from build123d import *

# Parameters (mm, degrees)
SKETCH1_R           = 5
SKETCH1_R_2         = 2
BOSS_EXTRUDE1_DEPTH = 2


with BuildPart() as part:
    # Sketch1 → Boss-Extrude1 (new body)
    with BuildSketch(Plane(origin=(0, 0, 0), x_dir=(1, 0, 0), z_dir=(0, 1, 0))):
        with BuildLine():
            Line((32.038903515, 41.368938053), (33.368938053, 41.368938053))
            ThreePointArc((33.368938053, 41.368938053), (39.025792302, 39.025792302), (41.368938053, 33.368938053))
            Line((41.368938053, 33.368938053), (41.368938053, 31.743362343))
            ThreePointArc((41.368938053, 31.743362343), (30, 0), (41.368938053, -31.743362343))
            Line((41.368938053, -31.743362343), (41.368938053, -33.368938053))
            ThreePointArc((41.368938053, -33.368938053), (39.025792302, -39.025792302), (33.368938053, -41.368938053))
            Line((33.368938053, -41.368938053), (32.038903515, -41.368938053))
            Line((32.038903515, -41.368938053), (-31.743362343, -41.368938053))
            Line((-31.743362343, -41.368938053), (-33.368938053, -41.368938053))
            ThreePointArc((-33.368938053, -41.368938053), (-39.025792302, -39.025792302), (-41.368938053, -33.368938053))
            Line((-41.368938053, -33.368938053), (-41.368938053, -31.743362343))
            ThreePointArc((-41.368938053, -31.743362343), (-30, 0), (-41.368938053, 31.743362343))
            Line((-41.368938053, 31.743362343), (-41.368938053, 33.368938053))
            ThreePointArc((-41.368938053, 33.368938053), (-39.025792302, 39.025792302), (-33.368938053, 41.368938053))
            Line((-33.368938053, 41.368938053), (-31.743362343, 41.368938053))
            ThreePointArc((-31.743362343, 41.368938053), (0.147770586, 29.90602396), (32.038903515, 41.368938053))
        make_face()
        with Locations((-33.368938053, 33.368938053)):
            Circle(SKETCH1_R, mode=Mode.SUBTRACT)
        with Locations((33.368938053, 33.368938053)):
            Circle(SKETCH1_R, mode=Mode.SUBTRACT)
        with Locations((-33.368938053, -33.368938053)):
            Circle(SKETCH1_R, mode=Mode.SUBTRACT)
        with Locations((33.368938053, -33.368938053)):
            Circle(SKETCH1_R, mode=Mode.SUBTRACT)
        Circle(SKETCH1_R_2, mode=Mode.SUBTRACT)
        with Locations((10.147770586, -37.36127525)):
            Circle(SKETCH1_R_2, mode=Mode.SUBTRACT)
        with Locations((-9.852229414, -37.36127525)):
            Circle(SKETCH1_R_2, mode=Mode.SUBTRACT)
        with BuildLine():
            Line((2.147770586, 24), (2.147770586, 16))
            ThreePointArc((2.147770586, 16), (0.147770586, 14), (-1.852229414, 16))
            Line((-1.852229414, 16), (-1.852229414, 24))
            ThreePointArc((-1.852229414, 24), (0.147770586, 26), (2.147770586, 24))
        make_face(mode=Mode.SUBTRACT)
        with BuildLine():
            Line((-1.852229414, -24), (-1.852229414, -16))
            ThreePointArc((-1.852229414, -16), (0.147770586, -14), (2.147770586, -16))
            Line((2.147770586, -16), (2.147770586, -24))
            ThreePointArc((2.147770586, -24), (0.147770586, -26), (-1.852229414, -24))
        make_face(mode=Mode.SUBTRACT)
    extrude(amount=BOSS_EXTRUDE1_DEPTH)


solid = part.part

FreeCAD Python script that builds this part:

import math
import FreeCAD as App
import Part
import Sketcher
Q = App.Units.Quantity

doc = App.newDocument("Part")
body = doc.addObject("PartDesign::Body", "Body")

# Sketch on XZ plane
sketch1 = body.newObject("Sketcher::SketchObject", "Sketch")
sketch1.AttachmentSupport = (doc.getObject("XZ_Plane"), [""])
sketch1.MapMode = "FlatFace"
sketch1.addGeometry(Part.LineSegment(App.Vector(33.4, -41.4, 0), App.Vector(32, -41.4, 0)), False)
sketch1.addGeometry(Part.ArcOfCircle(Part.Circle(App.Vector(0.1, -80, 0), App.Vector(0, 0, 1), 50.1), math.radians(50), math.radians(130)), False)
sketch1.addGeometry(Part.LineSegment(App.Vector(-31.7, -41.4, 0), App.Vector(-33.4, -41.4, 0)), False)
sketch1.addGeometry(Part.ArcOfCircle(Part.Circle(App.Vector(-33.4, -33.4, 0), App.Vector(0, 0, 1), 8), math.radians(-180), math.radians(-90)), False)
sketch1.addGeometry(Part.LineSegment(App.Vector(-41.4, -33.4, 0), App.Vector(-41.4, -31.7, 0)), False)
sketch1.addGeometry(Part.ArcOfCircle(Part.Circle(App.Vector(-80, 0, 0), App.Vector(0, 0, 1), 50), math.radians(-39), math.radians(39)), False)
sketch1.addGeometry(Part.LineSegment(App.Vector(-41.4, 31.7, 0), App.Vector(-41.4, 33.4, 0)), False)
sketch1.addGeometry(Part.ArcOfCircle(Part.Circle(App.Vector(-33.4, 33.4, 0), App.Vector(0, 0, 1), 8), math.radians(90), math.radians(180)), False)
sketch1.addGeometry(Part.LineSegment(App.Vector(-33.4, 41.4, 0), App.Vector(33.4, 41.4, 0)), False)
sketch1.addGeometry(Part.ArcOfCircle(Part.Circle(App.Vector(33.4, 33.4, 0), App.Vector(0, 0, 1), 8), math.radians(0), math.radians(90)), False)
sketch1.addGeometry(Part.LineSegment(App.Vector(41.4, 33.4, 0), App.Vector(41.4, 31.7, 0)), False)
sketch1.addGeometry(Part.ArcOfCircle(Part.Circle(App.Vector(80, 0, 0), App.Vector(0, 0, 1), 50), math.radians(141), math.radians(219)), False)
sketch1.addGeometry(Part.LineSegment(App.Vector(41.4, -31.7, 0), App.Vector(41.4, -33.4, 0)), False)
sketch1.addGeometry(Part.ArcOfCircle(Part.Circle(App.Vector(33.4, -33.4, 0), App.Vector(0, 0, 1), 8), math.radians(-90), math.radians(0)), False)
sketch1.addGeometry(Part.Circle(App.Vector(33.4, 33.4, 0), App.Vector(0, 0, 1), 5), False)
sketch1.addGeometry(Part.Circle(App.Vector(10.1, 37.4, 0), App.Vector(0, 0, 1), 2), False)
sketch1.addGeometry(Part.LineSegment(App.Vector(-1.9, 24, 0), App.Vector(-1.9, 16, 0)), False)
sketch1.addGeometry(Part.ArcOfCircle(Part.Circle(App.Vector(0.1, 16, 0), App.Vector(0, 0, 1), 2), math.radians(180), math.radians(360)), False)
sketch1.addGeometry(Part.LineSegment(App.Vector(2.1, 16, 0), App.Vector(2.1, 24, 0)), False)
sketch1.addGeometry(Part.ArcOfCircle(Part.Circle(App.Vector(0.1, 24, 0), App.Vector(0, 0, 1), 2), math.radians(0), math.radians(180)), False)
sketch1.addGeometry(Part.Circle(App.Vector(-9.9, 37.4, 0), App.Vector(0, 0, 1), 2), False)
sketch1.addGeometry(Part.Circle(App.Vector(-33.4, 33.4, 0), App.Vector(0, 0, 1), 5), False)
sketch1.addGeometry(Part.Circle(App.Vector(0, 0, 0), App.Vector(0, 0, 1), 2), False)
sketch1.addGeometry(Part.Circle(App.Vector(33.4, -33.4, 0), App.Vector(0, 0, 1), 5), False)
sketch1.addGeometry(Part.LineSegment(App.Vector(2.1, -24, 0), App.Vector(2.1, -16, 0)), False)
sketch1.addGeometry(Part.ArcOfCircle(Part.Circle(App.Vector(0.1, -16, 0), App.Vector(0, 0, 1), 2), math.radians(0), math.radians(180)), False)
sketch1.addGeometry(Part.LineSegment(App.Vector(-1.9, -16, 0), App.Vector(-1.9, -24, 0)), False)
sketch1.addGeometry(Part.ArcOfCircle(Part.Circle(App.Vector(0.1, -24, 0), App.Vector(0, 0, 1), 2), math.radians(180), math.radians(360)), False)
sketch1.addGeometry(Part.Circle(App.Vector(-33.4, -33.4, 0), App.Vector(0, 0, 1), 5), False)
sketch1.addConstraint(Sketcher.Constraint("Coincident", 0, 2, 1, 1))
sketch1.addConstraint(Sketcher.Constraint("Coincident", 1, 2, 2, 1))
sketch1.addConstraint(Sketcher.Constraint("Tangent", 2, 2, 3, 2))
sketch1.addConstraint(Sketcher.Constraint("Tangent", 3, 1, 4, 1))
sketch1.addConstraint(Sketcher.Constraint("Coincident", 4, 2, 5, 1))
sketch1.addConstraint(Sketcher.Constraint("Coincident", 5, 2, 6, 1))
sketch1.addConstraint(Sketcher.Constraint("Tangent", 6, 2, 7, 2))
sketch1.addConstraint(Sketcher.Constraint("Tangent", 7, 1, 8, 1))
sketch1.addConstraint(Sketcher.Constraint("Tangent", 8, 2, 9, 2))
sketch1.addConstraint(Sketcher.Constraint("Tangent", 9, 1, 10, 1))
sketch1.addConstraint(Sketcher.Constraint("Coincident", 10, 2, 11, 1))
sketch1.addConstraint(Sketcher.Constraint("Coincident", 11, 2, 12, 1))
sketch1.addConstraint(Sketcher.Constraint("Tangent", 12, 2, 13, 2))
sketch1.addConstraint(Sketcher.Constraint("Tangent", 13, 1, 0, 1))
sketch1.addConstraint(Sketcher.Constraint("Tangent", 16, 2, 17, 1))
sketch1.addConstraint(Sketcher.Constraint("Tangent", 17, 2, 18, 1))
sketch1.addConstraint(Sketcher.Constraint("Tangent", 18, 2, 19, 1))
sketch1.addConstraint(Sketcher.Constraint("Tangent", 19, 2, 16, 1))
sketch1.addConstraint(Sketcher.Constraint("Tangent", 24, 2, 25, 1))
sketch1.addConstraint(Sketcher.Constraint("Tangent", 25, 2, 26, 1))
sketch1.addConstraint(Sketcher.Constraint("Tangent", 26, 2, 27, 1))
sketch1.addConstraint(Sketcher.Constraint("Tangent", 27, 2, 24, 1))
sketch1.addConstraint(Sketcher.Constraint("Horizontal", 0))
sketch1.addConstraint(Sketcher.Constraint("Horizontal", 2))
sketch1.addConstraint(Sketcher.Constraint("Vertical", 4))
sketch1.addConstraint(Sketcher.Constraint("Vertical", 6))
sketch1.addConstraint(Sketcher.Constraint("Horizontal", 8))
sketch1.addConstraint(Sketcher.Constraint("Vertical", 10))
sketch1.addConstraint(Sketcher.Constraint("Vertical", 12))
sketch1.addConstraint(Sketcher.Constraint("Vertical", 16))
sketch1.addConstraint(Sketcher.Constraint("Vertical", 18))
sketch1.addConstraint(Sketcher.Constraint("Vertical", 24))
sketch1.addConstraint(Sketcher.Constraint("Vertical", 26))
sketch1.addConstraint(Sketcher.Constraint("Coincident", 22, 3, -1, 1))
sketch1.addConstraint(Sketcher.Constraint("Coincident", 14, 3, 9, 3))
sketch1.addConstraint(Sketcher.Constraint("Coincident", 21, 3, 7, 3))
sketch1.addConstraint(Sketcher.Constraint("Coincident", 23, 3, 13, 3))
sketch1.addConstraint(Sketcher.Constraint("Coincident", 28, 3, 3, 3))
sketch1.addConstraint(Sketcher.Constraint("Equal", 3, 7))
sketch1.addConstraint(Sketcher.Constraint("Equal", 7, 9))
sketch1.addConstraint(Sketcher.Constraint("Equal", 5, 11))
sketch1.addConstraint(Sketcher.Constraint("Equal", 9, 13))
sketch1.addConstraint(Sketcher.Constraint("Equal", 15, 17))
sketch1.addConstraint(Sketcher.Constraint("Equal", 19, 20))
sketch1.addConstraint(Sketcher.Constraint("Equal", 14, 21))
sketch1.addConstraint(Sketcher.Constraint("Equal", 20, 22))
sketch1.addConstraint(Sketcher.Constraint("Equal", 21, 23))
sketch1.addConstraint(Sketcher.Constraint("Equal", 22, 25))
sketch1.addConstraint(Sketcher.Constraint("Equal", 23, 28))
sketch1.addConstraint(Sketcher.Constraint("Symmetric", 3, 3, 9, 3, -1, 1))
sketch1.addConstraint(Sketcher.Constraint("Symmetric", 5, 3, 11, 3, -1, 1))
sketch1.addConstraint(Sketcher.Constraint("Symmetric", 7, 3, 13, 3, -1, 1))
sketch1.addConstraint(Sketcher.Constraint("Symmetric", 5, 2, 10, 2, -2))
sketch1.addConstraint(Sketcher.Constraint("Symmetric", 17, 3, 25, 3, -1))
sketch1.addConstraint(Sketcher.Constraint("Horizontal", 15, 3, 20, 3))
sketch1.addConstraint(Sketcher.Constraint("Vertical", 1, 3, 17, 3))
sketch1.addConstraint(Sketcher.Constraint("Equal", 2, 4))
sketch1.addConstraint(Sketcher.Constraint("Equal", 18, 24))
sketch1.addConstraint(Sketcher.Constraint("Diameter", 14, Q("10 mm")))
sketch1.addConstraint(Sketcher.Constraint("Diameter", 15, Q("4 mm")))
sketch1.addConstraint(Sketcher.Constraint("Radius", 3, Q("8 mm")))
sketch1.addConstraint(Sketcher.Constraint("Radius", 5, Q("50 mm")))
sketch1.addConstraint(Sketcher.Constraint("DistanceY", 16, 2, 16, 1, Q("8 mm")))
sketch1.addConstraint(Sketcher.Constraint("DistanceX", 5, 3, -1, 1, Q("80 mm")))
sketch1.addConstraint(Sketcher.Constraint("DistanceY", -1, 1, 17, 3, Q("16 mm")))
sketch1.addConstraint(Sketcher.Constraint("DistanceX", 17, 3, 15, 3, Q("10 mm")))
sketch1.addConstraint(Sketcher.Constraint("DistanceX", 20, 3, 19, 3, Q("10 mm")))
sketch1.addConstraint(Sketcher.Constraint("Radius", 1, Q("50.09384 mm")))
sketch1.addConstraint(Sketcher.Constraint("DistanceY", 1, 3, 7, 3, Q("113.368802 mm")))
sketch1.addConstraint(Sketcher.Constraint("DistanceX", 0, 2, 0, 1, Q("1.330035 mm")))
sketch1.addConstraint(Sketcher.Constraint("DistanceX", 2, 2, 2, 1, Q("1.625576 mm")))
sketch1.addConstraint(Sketcher.Constraint("DistanceY", -1, 1, 15, 3, Q("37.361275 mm")))
pad1 = body.newObject("PartDesign::Pad", "Pad")
pad1.Profile = sketch1
pad1.Length = 2
pad1.Reversed = True

doc.recompute()
